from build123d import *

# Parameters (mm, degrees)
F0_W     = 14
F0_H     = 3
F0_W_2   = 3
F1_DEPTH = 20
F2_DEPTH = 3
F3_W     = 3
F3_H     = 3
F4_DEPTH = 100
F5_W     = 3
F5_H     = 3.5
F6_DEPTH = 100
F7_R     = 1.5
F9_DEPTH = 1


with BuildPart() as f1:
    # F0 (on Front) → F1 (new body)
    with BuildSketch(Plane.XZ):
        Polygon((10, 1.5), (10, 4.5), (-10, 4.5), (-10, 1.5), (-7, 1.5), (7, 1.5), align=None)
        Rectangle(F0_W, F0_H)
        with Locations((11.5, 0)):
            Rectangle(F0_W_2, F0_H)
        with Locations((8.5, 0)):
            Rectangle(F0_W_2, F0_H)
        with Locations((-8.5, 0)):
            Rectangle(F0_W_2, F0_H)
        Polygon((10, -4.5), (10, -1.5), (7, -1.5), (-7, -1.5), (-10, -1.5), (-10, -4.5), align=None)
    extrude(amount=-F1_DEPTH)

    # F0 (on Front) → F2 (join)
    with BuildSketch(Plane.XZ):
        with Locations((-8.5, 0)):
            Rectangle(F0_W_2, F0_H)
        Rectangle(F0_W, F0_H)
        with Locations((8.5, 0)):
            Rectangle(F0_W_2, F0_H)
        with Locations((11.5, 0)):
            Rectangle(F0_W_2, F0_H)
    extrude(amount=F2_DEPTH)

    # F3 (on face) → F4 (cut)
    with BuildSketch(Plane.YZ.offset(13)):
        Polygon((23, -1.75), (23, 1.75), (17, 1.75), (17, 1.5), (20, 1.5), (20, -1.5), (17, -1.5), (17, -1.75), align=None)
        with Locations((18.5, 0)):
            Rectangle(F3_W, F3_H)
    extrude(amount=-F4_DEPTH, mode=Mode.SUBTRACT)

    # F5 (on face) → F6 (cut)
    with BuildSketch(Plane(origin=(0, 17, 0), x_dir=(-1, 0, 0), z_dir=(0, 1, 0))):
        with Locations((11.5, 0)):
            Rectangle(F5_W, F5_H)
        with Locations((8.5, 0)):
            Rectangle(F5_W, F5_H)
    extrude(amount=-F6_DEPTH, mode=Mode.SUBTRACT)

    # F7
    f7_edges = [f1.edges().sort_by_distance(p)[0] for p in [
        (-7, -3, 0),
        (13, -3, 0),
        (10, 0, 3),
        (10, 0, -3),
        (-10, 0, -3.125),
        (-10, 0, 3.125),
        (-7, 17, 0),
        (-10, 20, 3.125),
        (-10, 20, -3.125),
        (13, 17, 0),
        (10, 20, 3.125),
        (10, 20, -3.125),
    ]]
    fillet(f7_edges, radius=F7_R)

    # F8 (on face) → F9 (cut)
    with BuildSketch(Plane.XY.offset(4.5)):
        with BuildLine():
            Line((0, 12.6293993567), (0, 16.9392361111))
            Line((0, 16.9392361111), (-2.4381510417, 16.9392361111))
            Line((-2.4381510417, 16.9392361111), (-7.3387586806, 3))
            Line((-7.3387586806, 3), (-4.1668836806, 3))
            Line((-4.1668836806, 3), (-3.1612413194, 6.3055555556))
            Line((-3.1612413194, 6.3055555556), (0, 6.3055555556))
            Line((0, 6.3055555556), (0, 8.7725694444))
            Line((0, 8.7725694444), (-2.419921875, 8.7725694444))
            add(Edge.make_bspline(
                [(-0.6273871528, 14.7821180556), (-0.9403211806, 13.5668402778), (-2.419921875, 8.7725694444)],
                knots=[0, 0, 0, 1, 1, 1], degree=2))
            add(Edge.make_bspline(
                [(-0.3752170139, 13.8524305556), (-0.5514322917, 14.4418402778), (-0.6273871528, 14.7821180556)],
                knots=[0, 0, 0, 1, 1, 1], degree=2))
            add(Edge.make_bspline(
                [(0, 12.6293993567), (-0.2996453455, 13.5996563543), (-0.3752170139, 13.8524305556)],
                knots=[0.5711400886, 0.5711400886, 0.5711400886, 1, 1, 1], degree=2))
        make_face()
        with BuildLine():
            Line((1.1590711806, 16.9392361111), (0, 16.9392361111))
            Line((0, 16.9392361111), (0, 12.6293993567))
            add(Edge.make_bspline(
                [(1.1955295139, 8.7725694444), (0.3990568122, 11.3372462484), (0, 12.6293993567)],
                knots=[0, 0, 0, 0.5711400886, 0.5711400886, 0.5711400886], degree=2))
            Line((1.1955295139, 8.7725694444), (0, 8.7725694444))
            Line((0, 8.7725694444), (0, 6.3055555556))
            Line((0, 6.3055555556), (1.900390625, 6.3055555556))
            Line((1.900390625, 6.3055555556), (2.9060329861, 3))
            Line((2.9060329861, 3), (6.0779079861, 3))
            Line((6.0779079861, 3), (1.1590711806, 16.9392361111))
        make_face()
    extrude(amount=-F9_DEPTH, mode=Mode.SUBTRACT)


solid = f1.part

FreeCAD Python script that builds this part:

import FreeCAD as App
import Part
import Sketcher
Q = App.Units.Quantity


def edges_at(feature, points):
    """Names of the edges that pass closest to the given points."""
    edges = feature.Shape.Edges
    near = lambda p: min(range(len(edges)), key=lambda i: edges[i].distToShape(Part.Vertex(*p))[0])
    return sorted({f"Edge{near(p) + 1}" for p in points})

doc = App.newDocument("Part")
body = doc.addObject("PartDesign::Body", "Body")

sketch1 = body.newObject("Sketcher::SketchObject", "Sketch")
sketch1.AttachmentSupport = (doc.getObject("XZ_Plane"), [""])
sketch1.MapMode = "FlatFace"
sketch1.addGeometry(Part.LineSegment(App.Vector(10, 1.5, 0), App.Vector(10, 4.5, 0)), False)
sketch1.addGeometry(Part.LineSegment(App.Vector(10, 4.5, 0), App.Vector(-10, 4.5, 0)), False)
sketch1.addGeometry(Part.LineSegment(App.Vector(-10, 4.5, 0), App.Vector(-10, -4.5, 0)), False)
sketch1.addGeometry(Part.LineSegment(App.Vector(-10, -4.5, 0), App.Vector(10, -4.5, 0)), False)
sketch1.addGeometry(Part.LineSegment(App.Vector(10, -4.5, 0), App.Vector(10, -1.5, 0)), False)
sketch1.addGeometry(Part.LineSegment(App.Vector(10, -1.5, 0), App.Vector(13, -1.5, 0)), False)
sketch1.addGeometry(Part.LineSegment(App.Vector(13, -1.5, 0), App.Vector(13, 1.5, 0)), False)
sketch1.addGeometry(Part.LineSegment(App.Vector(13, 1.5, 0), App.Vector(10, 1.5, 0)), False)
sketch1.addConstraint(Sketcher.Constraint("Coincident", 0, 2, 1, 1))
sketch1.addConstraint(Sketcher.Constraint("Coincident", 1, 2, 2, 1))
sketch1.addConstraint(Sketcher.Constraint("Coincident", 2, 2, 3, 1))
sketch1.addConstraint(Sketcher.Constraint("Coincident", 3, 2, 4, 1))
sketch1.addConstraint(Sketcher.Constraint("Coincident", 4, 2, 5, 1))
sketch1.addConstraint(Sketcher.Constraint("Coincident", 5, 2, 6, 1))
sketch1.addConstraint(Sketcher.Constraint("Coincident", 6, 2, 7, 1))
sketch1.addConstraint(Sketcher.Constraint("Coincident", 7, 2, 0, 1))
sketch1.addConstraint(Sketcher.Constraint("Vertical", 0))
sketch1.addConstraint(Sketcher.Constraint("Horizontal", 1))
sketch1.addConstraint(Sketcher.Constraint("Vertical", 2))
sketch1.addConstraint(Sketcher.Constraint("Horizontal", 3))
sketch1.addConstraint(Sketcher.Constraint("Vertical", 4))
sketch1.addConstraint(Sketcher.Constraint("Horizontal", 5))
sketch1.addConstraint(Sketcher.Constraint("Vertical", 6))
sketch1.addConstraint(Sketcher.Constraint("Horizontal", 7))
sketch1.addConstraint(Sketcher.Constraint("Symmetric", 0, 2, 2, 2, -1, 1))
sketch1.addConstraint(Sketcher.Constraint("Symmetric", 4, 2, 7, 2, -1))
sketch1.addConstraint(Sketcher.Constraint("Equal", 7, 0))
sketch1.addConstraint(Sketcher.Constraint("Equal", 4, 6))
sketch1.addConstraint(Sketcher.Constraint("DistanceX", 1, 2, 1, 1, Q("20 mm")))
sketch1.addConstraint(Sketcher.Constraint("DistanceX", 5, 1, 5, 2, Q("3 mm")))
pad1 = body.newObject("PartDesign::Pad", "Pad")
pad1.Profile = sketch1
pad1.Length = 20
pad1.Reversed = True

sketch2 = body.newObject("Sketcher::SketchObject", "Sketch001")
sketch2.AttachmentSupport = (doc.getObject("XZ_Plane"), [""])
sketch2.MapMode = "FlatFace"
sketch2.addGeometry(Part.LineSegment(App.Vector(-10, 1.5, 0), App.Vector(-10, -1.5, 0)), False)
sketch2.addGeometry(Part.LineSegment(App.Vector(-10, -1.5, 0), App.Vector(13, -1.5, 0)), False)
sketch2.addGeometry(Part.LineSegment(App.Vector(13, -1.5, 0), App.Vector(13, 1.5, 0)), False)
sketch2.addGeometry(Part.LineSegment(App.Vector(13, 1.5, 0), App.Vector(-10, 1.5, 0)), False)
sketch2.addConstraint(Sketcher.Constraint("Coincident", 0, 2, 1, 1))
sketch2.addConstraint(Sketcher.Constraint("Coincident", 1, 2, 2, 1))
sketch2.addConstraint(Sketcher.Constraint("Coincident", 2, 2, 3, 1))
sketch2.addConstraint(Sketcher.Constraint("Coincident", 3, 2, 0, 1))
sketch2.addConstraint(Sketcher.Constraint("Vertical", 0))
sketch2.addConstraint(Sketcher.Constraint("Horizontal", 1))
sketch2.addConstraint(Sketcher.Constraint("Vertical", 2))
sketch2.addConstraint(Sketcher.Constraint("Horizontal", 3))
sketch2.addConstraint(Sketcher.Constraint("DistanceX", 1, 1, 1, 2, Q("23 mm")))
sketch2.addConstraint(Sketcher.Constraint("DistanceY", 0, 2, 0, 1, Q("3 mm")))
sketch2.addConstraint(Sketcher.Constraint("DistanceX", 0, 2, -1, 1, Q("10 mm")))
sketch2.addConstraint(Sketcher.Constraint("DistanceY", 0, 2, -1, 1, Q("1.5 mm")))
pad2 = body.newObject("PartDesign::Pad", "Pad001")
pad2.Profile = sketch2
pad2.Length = 3

sketch3 = body.newObject("Sketcher::SketchObject", "Sketch002")
sketch3.AttachmentSupport = (doc.getObject("YZ_Plane"), [""])
sketch3.MapMode = "FlatFace"
sketch3.AttachmentOffset = App.Placement(App.Vector(0, 0, 13), App.Rotation())
sketch3.addGeometry(Part.LineSegment(App.Vector(23, -1.75, 0), App.Vector(23, 1.75, 0)), False)
sketch3.addGeometry(Part.LineSegment(App.Vector(23, 1.75, 0), App.Vector(17, 1.75, 0)), False)
sketch3.addGeometry(Part.LineSegment(App.Vector(17, 1.75, 0), App.Vector(17, -1.75, 0)), False)
sketch3.addGeometry(Part.LineSegment(App.Vector(17, -1.75, 0), App.Vector(23, -1.75, 0)), False)
sketch3.addConstraint(Sketcher.Constraint("Coincident", 0, 2, 1, 1))
sketch3.addConstraint(Sketcher.Constraint("Coincident", 1, 2, 2, 1))
sketch3.addConstraint(Sketcher.Constraint("Coincident", 2, 2, 3, 1))
sketch3.addConstraint(Sketcher.Constraint("Coincident", 3, 2, 0, 1))
sketch3.addConstraint(Sketcher.Constraint("Vertical", 0))
sketch3.addConstraint(Sketcher.Constraint("Horizontal", 1))
sketch3.addConstraint(Sketcher.Constraint("Vertical", 2))
sketch3.addConstraint(Sketcher.Constraint("Horizontal", 3))
sketch3.addConstraint(Sketcher.Constraint("DistanceX", 1, 2, 1, 1, Q("6 mm")))
sketch3.addConstraint(Sketcher.Constraint("DistanceY", 0, 1, 0, 2, Q("3.5 mm")))
sketch3.addConstraint(Sketcher.Constraint("DistanceX", -1, 1, 0, 2, Q("23 mm")))
sketch3.addConstraint(Sketcher.Constraint("DistanceY", -1, 1, 0, 2, Q("1.75 mm")))
pocket1 = body.newObject("PartDesign::Pocket", "Pocket")
pocket1.Profile = sketch3
pocket1.Length = 100

sketch4 = body.newObject("Sketcher::SketchObject", "Sketch003")
sketch4.AttachmentSupport = (doc.getObject("XZ_Plane"), [""])
sketch4.MapMode = "FlatFace"
sketch4.AttachmentOffset = App.Placement(App.Vector(0, 0, -17), App.Rotation())
sketch4.addGeometry(Part.LineSegment(App.Vector(-13, -1.75, 0), App.Vector(-13, 1.75, 0)), False)
sketch4.addGeometry(Part.LineSegment(App.Vector(-13, 1.75, 0), App.Vector(-7, 1.75, 0)), False)
sketch4.addGeometry(Part.LineSegment(App.Vector(-7, 1.75, 0), App.Vector(-7, -1.75, 0)), False)
sketch4.addGeometry(Part.LineSegment(App.Vector(-7, -1.75, 0), App.Vector(-13, -1.75, 0)), False)
sketch4.addConstraint(Sketcher.Constraint("Coincident", 0, 2, 1, 1))
sketch4.addConstraint(Sketcher.Constraint("Coincident", 1, 2, 2, 1))
sketch4.addConstraint(Sketcher.Constraint("Coincident", 2, 2, 3, 1))
sketch4.addConstraint(Sketcher.Constraint("Coincident", 3, 2, 0, 1))
sketch4.addConstraint(Sketcher.Constraint("Vertical", 0))
sketch4.addConstraint(Sketcher.Constraint("Horizontal", 1))
sketch4.addConstraint(Sketcher.Constraint("Vertical", 2))
sketch4.addConstraint(Sketcher.Constraint("Horizontal", 3))
sketch4.addConstraint(Sketcher.Constraint("DistanceX", 1, 1, 1, 2, Q("6 mm")))
sketch4.addConstraint(Sketcher.Constraint("DistanceY", 0, 1, 0, 2, Q("3.5 mm")))
sketch4.addConstraint(Sketcher.Constraint("DistanceX", 0, 2, -1, 1, Q("13 mm")))
sketch4.addConstraint(Sketcher.Constraint("DistanceY", -1, 1, 0, 2, Q("1.75 mm")))
pocket2 = body.newObject("PartDesign::Pocket", "Pocket001")
pocket2.Profile = sketch4
pocket2.Length = 100
pocket2.Reversed = True
doc.recompute()

fillet = body.newObject("PartDesign::Fillet", "Fillet")
fillet.Base = (pocket2, edges_at(pocket2, [
    (-7, -3, 0),
    (13, -3, 0),
    (10, 0, 3),
    (10, 0, -3),
    (-10, 0, -3.125),
    (-10, 0, 3.125),
    (-7, 17, 0),
    (-10, 20, 3.125),
    (-10, 20, -3.125),
    (13, 17, 0),
    (10, 20, 3.125),
    (10, 20, -3.125),
]))
fillet.Radius = 1.5

sketch5 = body.newObject("Sketcher::SketchObject", "Sketch004")
sketch5.AttachmentSupport = (doc.getObject("XY_Plane"), [""])
sketch5.MapMode = "FlatFace"
sketch5.AttachmentOffset = App.Placement(App.Vector(0, 0, 4.5), App.Rotation())
sketch5.addGeometry(Part.LineSegment(App.Vector(-2.438151, 16.939236, 0), App.Vector(-7.338759, 3, 0)), False)
sketch5.addGeometry(Part.LineSegment(App.Vector(-7.338759, 3, 0), App.Vector(-4.166884, 3, 0)), False)
sketch5.addGeometry(Part.LineSegment(App.Vector(-4.166884, 3, 0), App.Vector(-3.161241, 6.305556, 0)), False)
sketch5.addGeometry(Part.LineSegment(App.Vector(-3.161241, 6.305556, 0), App.Vector(1.900391, 6.305556, 0)), False)
sketch5.addGeometry(Part.LineSegment(App.Vector(1.900391, 6.305556, 0), App.Vector(2.906033, 3, 0)), False)
sketch5.addGeometry(Part.LineSegment(App.Vector(2.906033, 3, 0), App.Vector(6.077908, 3, 0)), False)
sketch5.addGeometry(Part.LineSegment(App.Vector(6.077908, 3, 0), App.Vector(1.159071, 16.939236, 0)), False)
sketch5.addGeometry(Part.LineSegment(App.Vector(1.159071, 16.939236, 0), App.Vector(-2.438151, 16.939236, 0)), False)
sketch5.addGeometry(Part.BSplineCurve([App.Vector(-0.627387, 14.782118, 0), App.Vector(-0.940321, 13.56684, 0), App.Vector(-2.419922, 8.772569, 0)], [3, 3], [0, 1], False, 2, [1, 1, 1], False), False)
sketch5.addGeometry(Part.BSplineCurve([App.Vector(-0.375217, 13.852431, 0), App.Vector(-0.551432, 14.44184, 0), App.Vector(-0.627387, 14.782118, 0)], [3, 3], [0, 1], False, 2, [1, 1, 1], False), False)
sketch5.addGeometry(Part.BSplineCurve([App.Vector(0, 12.629399, 0), App.Vector(-0.299645, 13.599656, 0), App.Vector(-0.375217, 13.852431, 0)], [3, 3], [0.571140089, 1], False, 2, [1, 1, 1], False), False)
sketch5.addGeometry(Part.BSplineCurve([App.Vector(1.19553, 8.772569, 0), App.Vector(0.399057, 11.337246, 0), App.Vector(0, 12.629399, 0)], [3, 3], [0, 0.571140089], False, 2, [1, 1, 1], False), False)
sketch5.addGeometry(Part.LineSegment(App.Vector(1.19553, 8.772569, 0), App.Vector(-2.419922, 8.772569, 0)), False)
sketch5.addConstraint(Sketcher.Constraint("Block", 8))
sketch5.addConstraint(Sketcher.Constraint("Block", 9))
sketch5.addConstraint(Sketcher.Constraint("Block", 10))
sketch5.addConstraint(Sketcher.Constraint("Block", 11))
sketch5.addConstraint(Sketcher.Constraint("Coincident", 0, 2, 1, 1))
sketch5.addConstraint(Sketcher.Constraint("Coincident", 1, 2, 2, 1))
sketch5.addConstraint(Sketcher.Constraint("Coincident", 2, 2, 3, 1))
sketch5.addConstraint(Sketcher.Constraint("Coincident", 3, 2, 4, 1))
sketch5.addConstraint(Sketcher.Constraint("Coincident", 4, 2, 5, 1))
sketch5.addConstraint(Sketcher.Constraint("Coincident", 5, 2, 6, 1))
sketch5.addConstraint(Sketcher.Constraint("Coincident", 6, 2, 7, 1))
sketch5.addConstraint(Sketcher.Constraint("Coincident", 7, 2, 0, 1))
sketch5.addConstraint(Sketcher.Constraint("Coincident", 11, 1, 12, 1))
sketch5.addConstraint(Sketcher.Constraint("Coincident", 12, 2, 8, 2))
sketch5.addConstraint(Sketcher.Constraint("Horizontal", 1))
sketch5.addConstraint(Sketcher.Constraint("Horizontal", 3))
sketch5.addConstraint(Sketcher.Constraint("Horizontal", 5))
sketch5.addConstraint(Sketcher.Constraint("Horizontal", 7))
sketch5.addConstraint(Sketcher.Constraint("Horizontal", 1, 2, 4, 2))
sketch5.addConstraint(Sketcher.Constraint("Equal", 1, 5))
sketch5.addConstraint(Sketcher.Constraint("Equal", 2, 4))
sketch5.addConstraint(Sketcher.Constraint("DistanceY", -1, 1, 0, 2, Q("3 mm")))
sketch5.addConstraint(Sketcher.Constraint("DistanceX", 3, 1, 3, 2, Q("5.061632 mm")))
sketch5.addConstraint(Sketcher.Constraint("DistanceX", 1, 1, 1, 2, Q("3.171875 mm")))
sketch5.addConstraint(Sketcher.Constraint("DistanceX", 7, 2, 7, 1, Q("3.597222 mm")))
sketch5.addConstraint(Sketcher.Constraint("DistanceX", 0, 2, -1, 1, Q("7.338759 mm")))
sketch5.addConstraint(Sketcher.Constraint("DistanceX", 2, 2, -1, 1, Q("3.161241 mm")))
sketch5.addConstraint(Sketcher.Constraint("DistanceX", -1, 1, 6, 2, Q("1.159071 mm")))
sketch5.addConstraint(Sketcher.Constraint("DistanceY", 3, 2, 6, 2, Q("10.633681 mm")))
sketch5.addConstraint(Sketcher.Constraint("Distance", 0, Q("14.775597 mm")))
pocket3 = body.newObject("PartDesign::Pocket", "Pocket002")
pocket3.Profile = sketch5
pocket3.Length = 1

doc.recompute()
